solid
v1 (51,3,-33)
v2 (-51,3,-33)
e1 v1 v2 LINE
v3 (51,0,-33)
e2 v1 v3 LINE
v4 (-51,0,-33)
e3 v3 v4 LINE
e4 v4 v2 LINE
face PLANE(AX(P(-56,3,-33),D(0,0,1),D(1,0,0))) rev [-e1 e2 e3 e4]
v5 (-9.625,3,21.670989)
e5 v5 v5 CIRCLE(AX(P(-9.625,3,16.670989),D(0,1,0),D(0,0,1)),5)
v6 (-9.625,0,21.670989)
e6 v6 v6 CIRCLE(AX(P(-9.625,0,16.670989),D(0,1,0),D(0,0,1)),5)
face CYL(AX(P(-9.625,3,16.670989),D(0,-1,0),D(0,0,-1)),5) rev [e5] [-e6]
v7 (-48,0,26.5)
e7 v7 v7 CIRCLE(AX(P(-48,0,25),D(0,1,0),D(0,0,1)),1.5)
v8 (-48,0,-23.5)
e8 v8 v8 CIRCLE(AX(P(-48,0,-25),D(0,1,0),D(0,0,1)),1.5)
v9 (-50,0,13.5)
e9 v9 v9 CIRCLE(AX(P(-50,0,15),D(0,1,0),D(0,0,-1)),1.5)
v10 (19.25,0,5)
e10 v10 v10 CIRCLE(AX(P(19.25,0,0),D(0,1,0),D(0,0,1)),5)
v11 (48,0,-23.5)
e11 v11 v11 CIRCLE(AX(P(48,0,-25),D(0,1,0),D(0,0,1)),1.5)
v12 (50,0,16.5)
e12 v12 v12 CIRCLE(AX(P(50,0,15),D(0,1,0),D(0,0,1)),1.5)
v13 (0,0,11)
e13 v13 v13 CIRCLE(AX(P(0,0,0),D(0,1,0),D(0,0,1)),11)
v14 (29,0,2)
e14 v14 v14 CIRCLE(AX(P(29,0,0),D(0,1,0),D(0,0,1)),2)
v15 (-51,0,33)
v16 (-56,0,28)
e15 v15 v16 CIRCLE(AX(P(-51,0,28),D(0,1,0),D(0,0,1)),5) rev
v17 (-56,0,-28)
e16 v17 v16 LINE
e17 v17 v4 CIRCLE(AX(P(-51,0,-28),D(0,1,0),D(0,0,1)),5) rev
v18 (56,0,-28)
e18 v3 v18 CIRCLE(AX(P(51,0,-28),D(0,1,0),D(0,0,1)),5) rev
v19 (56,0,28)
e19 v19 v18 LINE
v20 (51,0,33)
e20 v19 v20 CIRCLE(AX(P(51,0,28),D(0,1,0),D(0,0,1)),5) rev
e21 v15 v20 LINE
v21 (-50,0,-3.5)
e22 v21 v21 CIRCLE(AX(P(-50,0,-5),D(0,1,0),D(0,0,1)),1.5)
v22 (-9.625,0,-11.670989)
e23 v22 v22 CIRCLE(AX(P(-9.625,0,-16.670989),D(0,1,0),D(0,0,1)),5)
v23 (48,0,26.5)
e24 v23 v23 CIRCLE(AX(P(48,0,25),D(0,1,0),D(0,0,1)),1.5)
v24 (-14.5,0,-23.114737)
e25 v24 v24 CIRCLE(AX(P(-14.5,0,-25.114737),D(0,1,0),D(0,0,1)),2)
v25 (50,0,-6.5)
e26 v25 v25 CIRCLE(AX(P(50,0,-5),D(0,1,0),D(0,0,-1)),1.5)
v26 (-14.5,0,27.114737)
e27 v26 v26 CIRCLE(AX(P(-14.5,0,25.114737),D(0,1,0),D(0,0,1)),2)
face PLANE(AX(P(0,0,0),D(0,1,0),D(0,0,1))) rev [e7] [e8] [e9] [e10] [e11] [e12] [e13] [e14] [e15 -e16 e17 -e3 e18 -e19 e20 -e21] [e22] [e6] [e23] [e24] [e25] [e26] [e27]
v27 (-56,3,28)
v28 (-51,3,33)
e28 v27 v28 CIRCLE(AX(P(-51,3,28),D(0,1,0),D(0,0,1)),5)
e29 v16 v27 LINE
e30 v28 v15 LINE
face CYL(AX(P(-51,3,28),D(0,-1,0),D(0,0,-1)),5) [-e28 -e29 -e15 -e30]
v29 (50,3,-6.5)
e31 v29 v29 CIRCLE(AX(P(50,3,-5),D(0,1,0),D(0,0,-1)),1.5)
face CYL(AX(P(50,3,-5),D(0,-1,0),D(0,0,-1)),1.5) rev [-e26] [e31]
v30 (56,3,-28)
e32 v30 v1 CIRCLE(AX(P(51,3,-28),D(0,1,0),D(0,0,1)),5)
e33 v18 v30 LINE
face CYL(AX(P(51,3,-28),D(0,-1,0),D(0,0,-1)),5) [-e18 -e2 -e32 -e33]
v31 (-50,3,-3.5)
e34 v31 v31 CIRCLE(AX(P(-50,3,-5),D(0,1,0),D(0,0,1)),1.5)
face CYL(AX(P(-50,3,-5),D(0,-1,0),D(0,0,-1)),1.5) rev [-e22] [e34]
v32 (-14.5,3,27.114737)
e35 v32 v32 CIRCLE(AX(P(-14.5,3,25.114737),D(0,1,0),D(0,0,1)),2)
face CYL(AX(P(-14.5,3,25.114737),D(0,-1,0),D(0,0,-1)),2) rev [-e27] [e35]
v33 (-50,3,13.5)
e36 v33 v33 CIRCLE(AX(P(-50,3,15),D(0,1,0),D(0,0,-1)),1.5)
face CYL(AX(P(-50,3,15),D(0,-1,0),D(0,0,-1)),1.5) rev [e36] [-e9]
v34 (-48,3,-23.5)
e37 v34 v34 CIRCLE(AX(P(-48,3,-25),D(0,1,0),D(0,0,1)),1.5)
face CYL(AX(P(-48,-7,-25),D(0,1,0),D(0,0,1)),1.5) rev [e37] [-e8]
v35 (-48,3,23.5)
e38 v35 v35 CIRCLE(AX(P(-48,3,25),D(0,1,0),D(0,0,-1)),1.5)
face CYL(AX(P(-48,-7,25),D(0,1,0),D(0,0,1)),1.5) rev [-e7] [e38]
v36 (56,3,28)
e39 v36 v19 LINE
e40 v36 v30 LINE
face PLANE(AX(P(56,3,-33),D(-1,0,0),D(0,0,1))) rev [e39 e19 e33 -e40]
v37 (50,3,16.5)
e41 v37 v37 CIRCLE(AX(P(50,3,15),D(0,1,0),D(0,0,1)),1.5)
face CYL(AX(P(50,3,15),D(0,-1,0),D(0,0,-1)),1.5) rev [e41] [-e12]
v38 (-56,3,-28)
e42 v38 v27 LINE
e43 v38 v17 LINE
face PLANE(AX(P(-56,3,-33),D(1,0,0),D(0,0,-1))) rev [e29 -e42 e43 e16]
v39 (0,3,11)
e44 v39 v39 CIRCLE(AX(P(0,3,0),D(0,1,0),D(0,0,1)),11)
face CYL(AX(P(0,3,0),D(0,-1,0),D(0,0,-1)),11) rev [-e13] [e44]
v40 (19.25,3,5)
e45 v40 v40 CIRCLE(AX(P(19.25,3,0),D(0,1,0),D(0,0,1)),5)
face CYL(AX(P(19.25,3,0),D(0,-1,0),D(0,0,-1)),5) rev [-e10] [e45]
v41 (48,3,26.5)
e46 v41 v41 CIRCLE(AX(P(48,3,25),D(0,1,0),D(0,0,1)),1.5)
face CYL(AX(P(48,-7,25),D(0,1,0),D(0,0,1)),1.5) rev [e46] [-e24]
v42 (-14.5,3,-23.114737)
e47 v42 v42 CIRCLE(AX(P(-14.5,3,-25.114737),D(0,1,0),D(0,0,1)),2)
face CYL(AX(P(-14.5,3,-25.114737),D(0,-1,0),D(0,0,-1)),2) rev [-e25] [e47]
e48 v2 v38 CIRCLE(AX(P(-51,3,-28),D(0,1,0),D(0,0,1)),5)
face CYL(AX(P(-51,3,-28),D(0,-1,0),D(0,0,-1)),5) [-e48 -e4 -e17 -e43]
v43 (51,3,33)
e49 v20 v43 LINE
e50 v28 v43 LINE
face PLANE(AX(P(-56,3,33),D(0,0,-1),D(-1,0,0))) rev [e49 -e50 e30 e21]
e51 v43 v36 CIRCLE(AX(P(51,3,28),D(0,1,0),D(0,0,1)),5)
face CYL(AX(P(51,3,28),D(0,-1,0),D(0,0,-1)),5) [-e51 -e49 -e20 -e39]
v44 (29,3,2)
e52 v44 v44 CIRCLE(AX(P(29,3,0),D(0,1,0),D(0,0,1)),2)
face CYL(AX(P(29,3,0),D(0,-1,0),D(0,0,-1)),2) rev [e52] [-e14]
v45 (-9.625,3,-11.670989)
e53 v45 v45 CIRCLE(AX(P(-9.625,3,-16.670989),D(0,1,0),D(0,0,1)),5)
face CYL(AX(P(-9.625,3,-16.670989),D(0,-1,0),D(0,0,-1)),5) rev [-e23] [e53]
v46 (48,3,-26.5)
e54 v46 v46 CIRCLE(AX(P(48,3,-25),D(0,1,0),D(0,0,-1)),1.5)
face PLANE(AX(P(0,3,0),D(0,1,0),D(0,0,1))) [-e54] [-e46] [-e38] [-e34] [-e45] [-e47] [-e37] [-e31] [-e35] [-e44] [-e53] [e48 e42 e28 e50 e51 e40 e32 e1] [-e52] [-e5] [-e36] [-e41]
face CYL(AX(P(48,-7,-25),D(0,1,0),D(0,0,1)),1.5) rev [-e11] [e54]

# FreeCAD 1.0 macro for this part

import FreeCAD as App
import Part
import Sketcher

V = App.Vector
Q = App.Units.Quantity


def edges_at(feature, points):
    """Names of the edges that pass closest to the given points."""
    edges = feature.Shape.Edges
    near = lambda p: min(range(len(edges)), key=lambda i: edges[i].distToShape(Part.Vertex(*p))[0])
    return sorted({f"Edge{near(p) + 1}" for p in points})


def add_polygon(sketch, points):
    """Adds a closed chain of lines whose ends are joined by coincident constraints."""
    first, n = sketch.GeometryCount, len(points)
    for a, b in zip(points, points[1:] + points[:1]):
        sketch.addGeometry(Part.LineSegment(App.Vector(*a, 0), App.Vector(*b, 0)), False)
    for i in range(n):
        sketch.addConstraint(Sketcher.Constraint("Coincident", first + i, 2, first + (i + 1) % n, 1))

doc = App.newDocument("Part")
body = doc.addObject("PartDesign::Body", "Body")

sketch1 = body.newObject("Sketcher::SketchObject", "Sketch")
sketch1.AttachmentSupport = (doc.getObject("XZ_Plane"), [""])
sketch1.MapMode = "FlatFace"
add_polygon(sketch1, [(-56, -33), (-56, 33), (56, 33), (56, -33)])
sketch1.addGeometry(Part.Circle(V(-50, 15, 0), V(0, 0, 1), 1.5), False)
sketch1.addGeometry(Part.Circle(V(-14.5, 25.1, 0), V(0, 0, 1), 2), False)
sketch1.addGeometry(Part.Circle(V(-9.6, 16.7, 0), V(0, 0, 1), 5), False)
sketch1.addGeometry(Part.Circle(V(50, 15, 0), V(0, 0, 1), 1.5), False)
sketch1.addGeometry(Part.Circle(V(-50, -5, 0), V(0, 0, 1), 1.5), False)
sketch1.addGeometry(Part.Circle(V(0, 0, 0), V(0, 0, 1), 11), False)
sketch1.addGeometry(Part.Circle(V(-9.6, -16.7, 0), V(0, 0, 1), 5), False)
sketch1.addGeometry(Part.Circle(V(-14.5, -25.1, 0), V(0, 0, 1), 2), False)
sketch1.addGeometry(Part.Circle(V(19.2, 0, 0), V(0, 0, 1), 5), False)
sketch1.addGeometry(Part.Circle(V(29, 0, 0), V(0, 0, 1), 2), False)
sketch1.addGeometry(Part.Circle(V(50, -5, 0), V(0, 0, 1), 1.5), False)
sketch1.addConstraint([
    Sketcher.Constraint("Vertical", 0),
    Sketcher.Constraint("Horizontal", 1),
    Sketcher.Constraint("Vertical", 2),
    Sketcher.Constraint("Horizontal", 3),
    Sketcher.Constraint("Coincident", 9, 3, -1, 1),
    Sketcher.Constraint("Equal", 4, 7),
    Sketcher.Constraint("Equal", 7, 8),
    Sketcher.Constraint("Equal", 6, 10),
    Sketcher.Constraint("Equal", 5, 11),
    Sketcher.Constraint("Equal", 10, 12),
    Sketcher.Constraint("Equal", 11, 13),
    Sketcher.Constraint("Equal", 8, 14),
    Sketcher.Constraint("Symmetric", 0, 2, 2, 2, -1, 1),
    Sketcher.Constraint("Symmetric", 4, 3, 7, 3, -2),
    Sketcher.Constraint("Symmetric", 8, 3, 14, 3, -2),
    Sketcher.Constraint("Symmetric", 6, 3, 10, 3, -1),
    Sketcher.Constraint("Symmetric", 5, 3, 11, 3, -1),
    Sketcher.Constraint("PointOnObject", 12, 3, -1),
    Sketcher.Constraint("PointOnObject", 13, 3, -1),
    Sketcher.Constraint("Vertical", 4, 3, 8, 3),
    Sketcher.Constraint("Diameter", 4, Q("3 mm")),
    Sketcher.Constraint("Diameter", 5, Q("4 mm")),
    Sketcher.Constraint("Diameter", 6, Q("10 mm")),
    Sketcher.Constraint("Diameter", 9, Q("22 mm")),
    Sketcher.Constraint("DistanceX", 1, 1, 1, 2, Q("112 mm")),
    Sketcher.Constraint("DistanceY", 0, 1, 0, 2, Q("66 mm")),
    Sketcher.Constraint("DistanceX", 4, 3, -1, 1, Q("50 mm")),
    Sketcher.Constraint("DistanceY", -1, 1, 4, 3, Q("15 mm")),
    Sketcher.Constraint("DistanceY", 8, 3, -1, 1, Q("5 mm")),
    Sketcher.Constraint("DistanceX", -1, 1, 13, 3, Q("29 mm")),
    Sketcher.Constraint("DistanceX", 5, 3, -1, 1, Q("14.5 mm")),
    Sketcher.Constraint("DistanceX", -1, 1, 12, 3, Q("19.25 mm")),
    Sketcher.Constraint("DistanceX", 6, 3, -1, 1, Q("9.625 mm")),
    Sketcher.Constraint("DistanceY", -1, 1, 6, 3, Q("16.670989 mm")),
    Sketcher.Constraint("DistanceY", -1, 1, 5, 3, Q("25.114737 mm")),
])
pad1 = body.newObject("PartDesign::Pad", "Pad")
pad1.Profile = sketch1
pad1.Length = 3
pad1.Reversed = True
doc.recompute()

fillet = body.newObject("PartDesign::Fillet", "Fillet")
fillet.Base = (pad1, edges_at(pad1, [
    (56, 1.5, 33),
    (-56, 1.5, 33),
    (-56, 1.5, -33),
    (56, 1.5, -33),
]))
fillet.Radius = 5

sketch2 = body.newObject("Sketcher::SketchObject", "Sketch001")
sketch2.AttachmentSupport = (doc.getObject("XZ_Plane"), [""])
sketch2.MapMode = "FlatFace"
sketch2.AttachmentOffset = App.Placement(V(0, 0, -3), App.Rotation())
sketch2.addGeometry([
    Part.Circle(V(-48, -25, 0), V(0, 0, 1), 1.5),
    Part.Circle(V(-48, 25, 0), V(0, 0, 1), 1.5),
    Part.Circle(V(48, 25, 0), V(0, 0, 1), 1.5),
    Part.Circle(V(48, -25, 0), V(0, 0, 1), 1.5),
], False)
sketch2.addConstraint([
    Sketcher.Constraint("Equal", 0, 1),
    Sketcher.Constraint("Equal", 1, 2),
    Sketcher.Constraint("Equal", 2, 3),
    Sketcher.Constraint("Symmetric", 0, 3, 2, 3, -1, 1),
    Sketcher.Constraint("Symmetric", 1, 3, 3, 3, -1, 1),
    Sketcher.Constraint("Symmetric", 1, 3, 2, 3, -2),
    Sketcher.Constraint("Diameter", 0, Q("3 mm")),
    Sketcher.Constraint("DistanceX", 0, 3, -1, 1, Q("48 mm")),
    Sketcher.Constraint("DistanceY", 0, 3, -1, 1, Q("25 mm")),
])
pocket1 = body.newObject("PartDesign::Pocket", "Pocket")
pocket1.Profile = sketch2
pocket1.Length = 10
pocket1.Reversed = True

doc.recompute()
